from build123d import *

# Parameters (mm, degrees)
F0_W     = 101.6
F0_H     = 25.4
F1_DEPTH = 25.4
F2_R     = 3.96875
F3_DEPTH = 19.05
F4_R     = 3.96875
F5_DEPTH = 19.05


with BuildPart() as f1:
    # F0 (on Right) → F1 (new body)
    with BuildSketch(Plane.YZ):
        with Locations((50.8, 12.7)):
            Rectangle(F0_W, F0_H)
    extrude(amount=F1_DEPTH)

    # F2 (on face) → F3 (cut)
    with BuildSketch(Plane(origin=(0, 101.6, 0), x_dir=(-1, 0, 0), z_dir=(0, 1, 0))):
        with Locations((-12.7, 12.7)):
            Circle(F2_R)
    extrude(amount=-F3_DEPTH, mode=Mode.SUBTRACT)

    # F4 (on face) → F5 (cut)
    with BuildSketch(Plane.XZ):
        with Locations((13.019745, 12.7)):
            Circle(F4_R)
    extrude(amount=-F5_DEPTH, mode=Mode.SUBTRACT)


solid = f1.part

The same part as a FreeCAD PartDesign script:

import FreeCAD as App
import Part
import Sketcher
Q = App.Units.Quantity

doc = App.newDocument("Part")
params = doc.addObject("Spreadsheet::Sheet", "Params")
for row, (alias, value) in enumerate([
    ("sketch1_width", "4 in"),
    ("sketch1_height", "1 in"),
    ("pad1_length", "1 in"),
    ("sketch2_diameter", "0.3125 in"),
    ("pocket1_length", "0.75 in"),
    ("sketch3_diameter", "0.3125 in"),
    ("pocket2_length", "0.75 in"),
], start=1):
    params.set(f"A{row}", alias)
    params.set(f"B{row}", "=" + value)
    params.setAlias(f"B{row}", alias)

body = doc.addObject("PartDesign::Body", "Body")

# Sketch on YZ plane
sketch1 = body.newObject("Sketcher::SketchObject", "Sketch")
sketch1.AttachmentSupport = (doc.getObject("YZ_Plane"), [""])
sketch1.MapMode = "FlatFace"
sketch1.addGeometry(Part.LineSegment(App.Vector(0, 25, 0), App.Vector(0, 0, 0)), False)
sketch1.addGeometry(Part.LineSegment(App.Vector(0, 0, 0), App.Vector(102, 0, 0)), False)
sketch1.addGeometry(Part.LineSegment(App.Vector(102, 0, 0), App.Vector(102, 25, 0)), False)
sketch1.addGeometry(Part.LineSegment(App.Vector(102, 25, 0), App.Vector(0, 25, 0)), False)
sketch1.addConstraint(Sketcher.Constraint("Coincident", 0, 2, 1, 1))
sketch1.addConstraint(Sketcher.Constraint("Coincident", 1, 2, 2, 1))
sketch1.addConstraint(Sketcher.Constraint("Coincident", 2, 2, 3, 1))
sketch1.addConstraint(Sketcher.Constraint("Coincident", 3, 2, 0, 1))
sketch1.addConstraint(Sketcher.Constraint("Vertical", 0))
sketch1.addConstraint(Sketcher.Constraint("Horizontal", 1))
sketch1.addConstraint(Sketcher.Constraint("Vertical", 2))
sketch1.addConstraint(Sketcher.Constraint("Horizontal", 3))
sketch1.addConstraint(Sketcher.Constraint("Coincident", 0, 2, -1, 1))
sketch1.addConstraint(Sketcher.Constraint("DistanceX", 1, 1, 1, 2, Q("4 in")))
sketch1.addConstraint(Sketcher.Constraint("DistanceY", 0, 2, 0, 1, Q("1 in")))
sketch1.setExpression("Constraints[9]", "Params.sketch1_width")
sketch1.setExpression("Constraints[10]", "Params.sketch1_height")
pad1 = body.newObject("PartDesign::Pad", "Pad")
pad1.Profile = sketch1
pad1.setExpression("Length", "Params.pad1_length")

# Sketch on XZ plane
sketch2 = body.newObject("Sketcher::SketchObject", "Sketch001")
sketch2.AttachmentSupport = (doc.getObject("XZ_Plane"), [""])
sketch2.MapMode = "FlatFace"
sketch2.AttachmentOffset = App.Placement(App.Vector(0, 0, -4 * 25.4), App.Rotation())
sketch2.addGeometry(Part.Circle(App.Vector(12.7, 12.7, 0), App.Vector(0, 0, 1), 4), False)
sketch2.addConstraint(Sketcher.Constraint("Diameter", 0, Q("0.3125 in")))
sketch2.addConstraint(Sketcher.Constraint("DistanceX", -1, 1, 0, 3, Q("0.5 in")))
sketch2.addConstraint(Sketcher.Constraint("DistanceY", -1, 1, 0, 3, Q("0.5 in")))
sketch2.setExpression("Constraints[0]", "Params.sketch2_diameter")
pocket1 = body.newObject("PartDesign::Pocket", "Pocket")
pocket1.Profile = sketch2
pocket1.setExpression("Length", "Params.pocket1_length")
pocket1.Reversed = True

# Sketch on XZ plane
sketch3 = body.newObject("Sketcher::SketchObject", "Sketch002")
sketch3.AttachmentSupport = (doc.getObject("XZ_Plane"), [""])
sketch3.MapMode = "FlatFace"
sketch3.addGeometry(Part.Circle(App.Vector(13, 12.7, 0), App.Vector(0, 0, 1), 4), False)
sketch3.addConstraint(Sketcher.Constraint("Diameter", 0, Q("0.3125 in")))
sketch3.addConstraint(Sketcher.Constraint("DistanceY", -1, 1, 0, 3, Q("0.5 in")))
sketch3.addConstraint(Sketcher.Constraint("DistanceX", -1, 1, 0, 3, Q("13.019745 mm")))
sketch3.setExpression("Constraints[0]", "Params.sketch3_diameter")
pocket2 = body.newObject("PartDesign::Pocket", "Pocket001")
pocket2.Profile = sketch3
pocket2.setExpression("Length", "Params.pocket2_length")

doc.recompute()
